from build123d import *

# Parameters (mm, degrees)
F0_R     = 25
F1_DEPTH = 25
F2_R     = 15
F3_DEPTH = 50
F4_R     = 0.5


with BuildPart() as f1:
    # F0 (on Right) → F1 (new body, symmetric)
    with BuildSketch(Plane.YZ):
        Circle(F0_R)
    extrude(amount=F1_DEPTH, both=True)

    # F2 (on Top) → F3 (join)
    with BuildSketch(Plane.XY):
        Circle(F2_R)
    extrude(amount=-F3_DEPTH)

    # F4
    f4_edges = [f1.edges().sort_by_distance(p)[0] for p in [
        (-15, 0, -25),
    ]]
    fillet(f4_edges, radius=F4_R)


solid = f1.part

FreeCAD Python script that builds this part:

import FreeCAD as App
import Part
import Sketcher

V = App.Vector
Q = App.Units.Quantity


def edges_at(feature, points):
    """Names of the edges that pass closest to the given points."""
    edges = feature.Shape.Edges
    near = lambda p: min(range(len(edges)), key=lambda i: edges[i].distToShape(Part.Vertex(*p))[0])
    return sorted({f"Edge{near(p) + 1}" for p in points})

doc = App.newDocument("Part")
body = doc.addObject("PartDesign::Body", "Body")

# Sketch on YZ plane
sketch1 = body.newObject("Sketcher::SketchObject", "Sketch")
sketch1.AttachmentSupport = (doc.getObject("YZ_Plane"), [""])
sketch1.MapMode = "FlatFace"
sketch1.addGeometry(Part.Circle(V(0, 0, 0), V(0, 0, 1), 25), False)
sketch1.addConstraint(Sketcher.Constraint("Coincident", 0, 3, -1, 1))
sketch1.addConstraint(Sketcher.Constraint("Diameter", 0, Q("50 mm")))
pad1 = body.newObject("PartDesign::Pad", "Pad")
pad1.Profile = sketch1
pad1.Length = 50
pad1.Midplane = True

# Sketch on XY plane
sketch2 = body.newObject("Sketcher::SketchObject", "Sketch001")
sketch2.AttachmentSupport = (doc.getObject("XY_Plane"), [""])
sketch2.MapMode = "FlatFace"
sketch2.addGeometry(Part.Circle(V(0, 0, 0), V(0, 0, 1), 15), False)
sketch2.addConstraint(Sketcher.Constraint("Coincident", 0, 3, -1, 1))
sketch2.addConstraint(Sketcher.Constraint("Diameter", 0, Q("30 mm")))
pad2 = body.newObject("PartDesign::Pad", "Pad001")
pad2.Profile = sketch2
pad2.Length = 50
pad2.Reversed = True
doc.recompute()

fillet = body.newObject("PartDesign::Fillet", "Fillet")
fillet.Base = (pad2, edges_at(pad2, [(-15, 0, -25)]))
fillet.Radius = 0.5

doc.recompute()
